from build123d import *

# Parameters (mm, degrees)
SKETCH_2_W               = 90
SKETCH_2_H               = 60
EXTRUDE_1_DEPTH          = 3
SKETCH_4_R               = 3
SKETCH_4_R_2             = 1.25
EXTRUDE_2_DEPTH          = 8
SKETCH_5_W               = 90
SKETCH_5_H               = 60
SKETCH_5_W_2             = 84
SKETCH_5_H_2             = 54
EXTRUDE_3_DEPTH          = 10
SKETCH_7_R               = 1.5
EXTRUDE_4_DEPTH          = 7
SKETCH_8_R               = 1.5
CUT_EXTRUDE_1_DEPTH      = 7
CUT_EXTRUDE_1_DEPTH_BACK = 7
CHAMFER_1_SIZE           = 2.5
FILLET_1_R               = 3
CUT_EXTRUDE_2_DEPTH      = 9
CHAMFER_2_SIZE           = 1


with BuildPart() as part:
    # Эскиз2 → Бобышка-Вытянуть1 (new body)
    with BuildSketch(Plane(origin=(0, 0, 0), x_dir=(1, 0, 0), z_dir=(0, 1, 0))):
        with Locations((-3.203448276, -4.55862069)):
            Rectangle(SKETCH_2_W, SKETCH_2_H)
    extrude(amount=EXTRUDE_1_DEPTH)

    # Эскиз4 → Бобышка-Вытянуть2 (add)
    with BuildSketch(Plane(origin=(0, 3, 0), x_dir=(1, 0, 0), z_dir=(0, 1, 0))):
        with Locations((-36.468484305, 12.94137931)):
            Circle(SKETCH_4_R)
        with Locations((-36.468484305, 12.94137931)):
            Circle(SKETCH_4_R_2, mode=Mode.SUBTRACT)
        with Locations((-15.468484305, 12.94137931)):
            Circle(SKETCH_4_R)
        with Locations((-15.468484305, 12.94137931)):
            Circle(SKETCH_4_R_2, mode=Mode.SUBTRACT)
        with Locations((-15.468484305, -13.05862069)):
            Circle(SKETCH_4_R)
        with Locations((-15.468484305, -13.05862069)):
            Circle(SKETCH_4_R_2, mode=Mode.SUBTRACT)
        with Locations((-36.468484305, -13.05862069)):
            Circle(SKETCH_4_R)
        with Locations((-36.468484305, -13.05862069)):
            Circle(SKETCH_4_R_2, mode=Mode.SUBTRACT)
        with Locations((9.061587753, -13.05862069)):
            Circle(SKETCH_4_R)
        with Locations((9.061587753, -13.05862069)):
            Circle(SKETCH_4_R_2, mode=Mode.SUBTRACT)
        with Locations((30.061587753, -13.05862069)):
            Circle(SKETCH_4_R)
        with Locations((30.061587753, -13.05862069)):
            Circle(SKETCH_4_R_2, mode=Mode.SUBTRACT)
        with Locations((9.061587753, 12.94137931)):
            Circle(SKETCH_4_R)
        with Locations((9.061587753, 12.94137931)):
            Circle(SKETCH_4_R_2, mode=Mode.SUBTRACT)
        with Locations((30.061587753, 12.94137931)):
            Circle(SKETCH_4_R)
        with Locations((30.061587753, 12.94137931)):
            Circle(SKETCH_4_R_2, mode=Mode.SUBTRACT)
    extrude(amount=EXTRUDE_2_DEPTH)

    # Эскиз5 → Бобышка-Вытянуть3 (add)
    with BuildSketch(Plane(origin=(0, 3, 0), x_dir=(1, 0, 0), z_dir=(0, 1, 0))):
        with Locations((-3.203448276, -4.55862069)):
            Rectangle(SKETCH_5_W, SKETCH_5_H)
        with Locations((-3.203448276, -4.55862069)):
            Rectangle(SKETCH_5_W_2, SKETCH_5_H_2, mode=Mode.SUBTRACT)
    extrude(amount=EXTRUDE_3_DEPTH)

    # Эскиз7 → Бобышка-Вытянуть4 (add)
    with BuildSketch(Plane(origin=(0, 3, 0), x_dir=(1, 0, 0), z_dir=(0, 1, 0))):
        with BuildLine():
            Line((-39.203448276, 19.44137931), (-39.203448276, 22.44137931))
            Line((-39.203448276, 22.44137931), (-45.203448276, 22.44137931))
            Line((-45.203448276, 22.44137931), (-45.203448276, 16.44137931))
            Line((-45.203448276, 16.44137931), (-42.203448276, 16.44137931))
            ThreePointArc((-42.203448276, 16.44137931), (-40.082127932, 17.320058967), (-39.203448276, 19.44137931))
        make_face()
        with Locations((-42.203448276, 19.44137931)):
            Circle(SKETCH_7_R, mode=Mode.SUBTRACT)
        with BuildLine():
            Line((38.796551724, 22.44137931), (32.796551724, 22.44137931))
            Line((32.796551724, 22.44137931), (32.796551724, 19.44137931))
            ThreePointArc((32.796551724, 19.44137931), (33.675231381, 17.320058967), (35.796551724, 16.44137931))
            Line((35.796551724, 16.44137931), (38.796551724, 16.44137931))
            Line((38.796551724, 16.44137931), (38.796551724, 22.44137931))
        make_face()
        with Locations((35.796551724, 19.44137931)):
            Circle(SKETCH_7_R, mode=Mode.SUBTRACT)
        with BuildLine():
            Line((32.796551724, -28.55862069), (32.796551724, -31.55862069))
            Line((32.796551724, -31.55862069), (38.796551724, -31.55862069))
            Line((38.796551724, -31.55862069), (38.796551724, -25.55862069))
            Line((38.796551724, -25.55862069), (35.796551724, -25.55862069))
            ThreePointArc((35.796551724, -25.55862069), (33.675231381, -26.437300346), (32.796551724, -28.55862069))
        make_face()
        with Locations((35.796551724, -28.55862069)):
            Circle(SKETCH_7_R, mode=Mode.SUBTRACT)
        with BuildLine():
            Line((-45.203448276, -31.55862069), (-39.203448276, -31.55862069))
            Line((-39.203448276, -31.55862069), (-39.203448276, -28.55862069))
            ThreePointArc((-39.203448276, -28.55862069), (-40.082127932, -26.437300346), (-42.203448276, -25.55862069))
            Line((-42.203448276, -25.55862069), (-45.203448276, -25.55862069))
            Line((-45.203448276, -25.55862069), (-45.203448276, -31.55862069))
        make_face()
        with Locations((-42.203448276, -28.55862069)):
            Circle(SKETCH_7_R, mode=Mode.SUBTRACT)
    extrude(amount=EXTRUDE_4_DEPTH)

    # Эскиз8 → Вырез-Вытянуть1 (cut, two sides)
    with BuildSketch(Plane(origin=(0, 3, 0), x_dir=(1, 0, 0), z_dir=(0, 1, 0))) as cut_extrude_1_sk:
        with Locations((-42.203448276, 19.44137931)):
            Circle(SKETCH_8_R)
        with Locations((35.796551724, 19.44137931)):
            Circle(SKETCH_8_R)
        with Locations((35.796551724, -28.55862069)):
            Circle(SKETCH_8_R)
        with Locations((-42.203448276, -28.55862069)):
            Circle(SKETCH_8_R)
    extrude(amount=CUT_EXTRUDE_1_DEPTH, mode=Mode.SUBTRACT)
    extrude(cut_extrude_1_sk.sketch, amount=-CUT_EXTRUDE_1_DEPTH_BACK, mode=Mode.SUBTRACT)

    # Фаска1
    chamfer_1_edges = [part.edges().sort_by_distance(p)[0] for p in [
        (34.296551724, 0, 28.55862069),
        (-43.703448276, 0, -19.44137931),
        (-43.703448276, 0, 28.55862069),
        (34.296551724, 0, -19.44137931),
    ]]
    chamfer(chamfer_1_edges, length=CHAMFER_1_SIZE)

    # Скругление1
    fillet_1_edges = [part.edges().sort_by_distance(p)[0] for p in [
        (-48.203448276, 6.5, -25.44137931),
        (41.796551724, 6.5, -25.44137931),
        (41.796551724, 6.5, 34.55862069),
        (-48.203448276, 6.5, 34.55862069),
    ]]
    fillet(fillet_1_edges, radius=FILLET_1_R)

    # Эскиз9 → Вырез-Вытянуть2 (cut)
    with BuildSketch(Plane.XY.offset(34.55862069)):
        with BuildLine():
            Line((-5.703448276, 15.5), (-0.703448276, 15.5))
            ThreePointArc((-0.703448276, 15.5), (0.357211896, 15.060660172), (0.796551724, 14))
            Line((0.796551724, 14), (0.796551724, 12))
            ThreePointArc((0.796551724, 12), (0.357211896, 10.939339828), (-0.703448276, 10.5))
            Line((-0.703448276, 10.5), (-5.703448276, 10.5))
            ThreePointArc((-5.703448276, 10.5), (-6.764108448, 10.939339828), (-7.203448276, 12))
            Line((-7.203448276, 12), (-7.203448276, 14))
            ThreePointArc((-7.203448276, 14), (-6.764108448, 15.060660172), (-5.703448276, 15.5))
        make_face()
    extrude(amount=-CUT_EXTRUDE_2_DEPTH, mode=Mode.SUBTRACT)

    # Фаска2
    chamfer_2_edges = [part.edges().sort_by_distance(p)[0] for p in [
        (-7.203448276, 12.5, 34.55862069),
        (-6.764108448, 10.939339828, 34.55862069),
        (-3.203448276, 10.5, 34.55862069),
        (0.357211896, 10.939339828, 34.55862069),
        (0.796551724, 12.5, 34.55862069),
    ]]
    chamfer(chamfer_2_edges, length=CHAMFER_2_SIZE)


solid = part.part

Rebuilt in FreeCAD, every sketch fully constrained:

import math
import FreeCAD as App
import Part
import Sketcher
from FreeCAD import Vector


def edges_at(feature, points):
    """Names of the edges that pass closest to the given points."""
    edges = feature.Shape.Edges
    near = lambda p: min(range(len(edges)), key=lambda i: edges[i].distToShape(Part.Vertex(*p))[0])
    return sorted({f"Edge{near(p) + 1}" for p in points})

doc = App.newDocument("Part")
body = doc.addObject("PartDesign::Body", "Body")

# Sketch on XZ plane
sketch1 = body.newObject("Sketcher::SketchObject", "Sketch")
sketch1.AttachmentSupport = (doc.getObject("XZ_Plane"), [""])
sketch1.MapMode = "FlatFace"
sketch1.addGeometry([
    Part.LineSegment(Vector(-48, -25, 0), Vector(-48, 35, 0)),
    Part.LineSegment(Vector(-48, 35, 0), Vector(42, 35, 0)),
    Part.LineSegment(Vector(42, 35, 0), Vector(42, -25, 0)),
    Part.LineSegment(Vector(42, -25, 0), Vector(-48, -25, 0)),
], False)
sketch1.addConstraint([
    Sketcher.Constraint("Coincident", 0, 2, 1, 1),
    Sketcher.Constraint("Coincident", 1, 2, 2, 1),
    Sketcher.Constraint("Coincident", 2, 2, 3, 1),
    Sketcher.Constraint("Coincident", 3, 2, 0, 1),
    Sketcher.Constraint("Vertical", 0),
    Sketcher.Constraint("Horizontal", 1),
    Sketcher.Constraint("Vertical", 2),
    Sketcher.Constraint("Horizontal", 3),
    Sketcher.Constraint("DistanceX", 1, 1, 1, 2, 90.0),
    Sketcher.Constraint("DistanceY", 0, 1, 0, 2, 60.0),
    Sketcher.Constraint("DistanceX", 0, 2, -1, 1, 48.203448),
    Sketcher.Constraint("DistanceY", -1, 1, 0, 2, 34.558621),
])
pad1 = body.newObject("PartDesign::Pad", "Pad")
pad1.Profile = sketch1
pad1.Length = 3
pad1.Reversed = True

# Sketch on XZ plane
sketch2 = body.newObject("Sketcher::SketchObject", "Sketch001")
sketch2.AttachmentSupport = (doc.getObject("XZ_Plane"), [""])
sketch2.MapMode = "FlatFace"
sketch2.AttachmentOffset = App.Placement(Vector(0, 0, -3), App.Rotation())
sketch2.addGeometry([
    Part.Circle(Vector(-36.5, -12.9, 0), Vector(0, 0, 1), 3),  # 0
    Part.Circle(Vector(-36.5, -12.9, 0), Vector(0, 0, 1), 1.2),  # 1
    Part.Circle(Vector(-15.5, -12.9, 0), Vector(0, 0, 1), 3),  # 2
    Part.Circle(Vector(-15.5, -12.9, 0), Vector(0, 0, 1), 1.2),  # 3
    Part.Circle(Vector(-15.5, 13.1, 0), Vector(0, 0, 1), 3),  # 4
    Part.Circle(Vector(-15.5, 13.1, 0), Vector(0, 0, 1), 1.2),  # 5
    Part.Circle(Vector(-36.5, 13.1, 0), Vector(0, 0, 1), 3),  # 6
    Part.Circle(Vector(-36.5, 13.1, 0), Vector(0, 0, 1), 1.2),  # 7
    Part.Circle(Vector(9.1, 13.1, 0), Vector(0, 0, 1), 3),  # 8
    Part.Circle(Vector(9.1, 13.1, 0), Vector(0, 0, 1), 1.2),  # 9
    Part.Circle(Vector(30.1, 13.1, 0), Vector(0, 0, 1), 3),  # 10
    Part.Circle(Vector(30.1, 13.1, 0), Vector(0, 0, 1), 1.2),  # 11
    Part.Circle(Vector(9.1, -12.9, 0), Vector(0, 0, 1), 3),  # 12
    Part.Circle(Vector(9.1, -12.9, 0), Vector(0, 0, 1), 1.2),  # 13
    Part.Circle(Vector(30.1, -12.9, 0), Vector(0, 0, 1), 3),  # 14
    Part.Circle(Vector(30.1, -12.9, 0), Vector(0, 0, 1), 1.2),  # 15
], False)
sketch2.addConstraint([
    Sketcher.Constraint("Coincident", 1, 3, 0, 3),
    Sketcher.Constraint("Coincident", 3, 3, 2, 3),
    Sketcher.Constraint("Coincident", 5, 3, 4, 3),
    Sketcher.Constraint("Coincident", 7, 3, 6, 3),
    Sketcher.Constraint("Coincident", 9, 3, 8, 3),
    Sketcher.Constraint("Coincident", 11, 3, 10, 3),
    Sketcher.Constraint("Coincident", 13, 3, 12, 3),
    Sketcher.Constraint("Coincident", 15, 3, 14, 3),
    Sketcher.Constraint("Equal", 0, 2),
    Sketcher.Constraint("Equal", 1, 3),
    Sketcher.Constraint("Equal", 2, 4),
    Sketcher.Constraint("Equal", 3, 5),
    Sketcher.Constraint("Equal", 4, 6),
    Sketcher.Constraint("Equal", 5, 7),
    Sketcher.Constraint("Equal", 6, 8),
    Sketcher.Constraint("Equal", 7, 9),
    Sketcher.Constraint("Equal", 8, 10),
    Sketcher.Constraint("Equal", 9, 11),
    Sketcher.Constraint("Equal", 10, 12),
    Sketcher.Constraint("Equal", 11, 13),
    Sketcher.Constraint("Equal", 12, 14),
    Sketcher.Constraint("Equal", 13, 15),
    Sketcher.Constraint("Horizontal", 1, 3, 2, 3),
    Sketcher.Constraint("Horizontal", 5, 3, 6, 3),
    Sketcher.Constraint("Horizontal", 7, 3, 8, 3),
    Sketcher.Constraint("Horizontal", 9, 3, 10, 3),
    Sketcher.Constraint("Horizontal", 3, 3, 12, 3),
    Sketcher.Constraint("Horizontal", 13, 3, 14, 3),
    Sketcher.Constraint("Vertical", 3, 3, 4, 3),
    Sketcher.Constraint("Vertical", 1, 3, 6, 3),
    Sketcher.Constraint("Vertical", 9, 3, 12, 3),
    Sketcher.Constraint("Vertical", 11, 3, 14, 3),
    Sketcher.Constraint("Diameter", 0, 6.0),
    Sketcher.Constraint("Diameter", 1, 2.5),
    Sketcher.Constraint("DistanceX", 0, 3, 2, 3, 21.0),
    Sketcher.Constraint("DistanceY", 2, 3, 4, 3, 26.0),
    Sketcher.Constraint("DistanceX", 8, 3, 10, 3, 21.0),
    Sketcher.Constraint("DistanceY", 0, 3, -1, 1, 12.941379),
    Sketcher.Constraint("DistanceX", 0, 3, -1, 1, 36.468484),
    Sketcher.Constraint("DistanceX", -1, 1, 8, 3, 9.061588),
])
pad2 = body.newObject("PartDesign::Pad", "Pad001")
pad2.Profile = sketch2
pad2.Length = 8
pad2.Reversed = True

# Sketch on XZ plane
sketch3 = body.newObject("Sketcher::SketchObject", "Sketch002")
sketch3.AttachmentSupport = (doc.getObject("XZ_Plane"), [""])
sketch3.MapMode = "FlatFace"
sketch3.AttachmentOffset = App.Placement(Vector(0, 0, -3), App.Rotation())
sketch3.addGeometry([
    Part.LineSegment(Vector(-48, -25, 0), Vector(-48, 35, 0)),  # 0
    Part.LineSegment(Vector(-48, 35, 0), Vector(42, 35, 0)),  # 1
    Part.LineSegment(Vector(42, 35, 0), Vector(42, -25, 0)),  # 2
    Part.LineSegment(Vector(42, -25, 0), Vector(-48, -25, 0)),  # 3
    Part.LineSegment(Vector(39, 32, 0), Vector(-45, 32, 0)),  # 4
    Part.LineSegment(Vector(-45, 32, 0), Vector(-45, -22, 0)),  # 5
    Part.LineSegment(Vector(-45, -22, 0), Vector(39, -22, 0)),  # 6
    Part.LineSegment(Vector(39, -22, 0), Vector(39, 32, 0)),  # 7
], False)
sketch3.addConstraint([
    Sketcher.Constraint("Coincident", 0, 2, 1, 1),
    Sketcher.Constraint("Coincident", 1, 2, 2, 1),
    Sketcher.Constraint("Coincident", 2, 2, 3, 1),
    Sketcher.Constraint("Coincident", 3, 2, 0, 1),
    Sketcher.Constraint("Coincident", 4, 2, 5, 1),
    Sketcher.Constraint("Coincident", 5, 2, 6, 1),
    Sketcher.Constraint("Coincident", 6, 2, 7, 1),
    Sketcher.Constraint("Coincident", 7, 2, 4, 1),
    Sketcher.Constraint("Vertical", 0),
    Sketcher.Constraint("Horizontal", 1),
    Sketcher.Constraint("Vertical", 2),
    Sketcher.Constraint("Horizontal", 3),
    Sketcher.Constraint("Horizontal", 4),
    Sketcher.Constraint("Vertical", 5),
    Sketcher.Constraint("Horizontal", 6),
    Sketcher.Constraint("Vertical", 7),
    Sketcher.Constraint("DistanceX", 1, 1, 1, 2, 90.0),
    Sketcher.Constraint("DistanceX", 4, 2, 4, 1, 84.0),
    Sketcher.Constraint("DistanceY", 0, 1, 0, 2, 60.0),
    Sketcher.Constraint("DistanceY", 5, 2, 5, 1, 54.0),
    Sketcher.Constraint("DistanceX", 0, 2, 4, 2, 3.0),
    Sketcher.Constraint("DistanceY", 4, 2, 0, 2, 3.0),
    Sketcher.Constraint("DistanceX", 0, 2, -1, 1, 48.203448),
    Sketcher.Constraint("DistanceY", -1, 1, 0, 2, 34.558621),
])
pad3 = body.newObject("PartDesign::Pad", "Pad002")
pad3.Profile = sketch3
pad3.Length = 10
pad3.Reversed = True

# Sketch on XZ plane
sketch4 = body.newObject("Sketcher::SketchObject", "Sketch003")
sketch4.AttachmentSupport = (doc.getObject("XZ_Plane"), [""])
sketch4.MapMode = "FlatFace"
sketch4.AttachmentOffset = App.Placement(Vector(0, 0, -3), App.Rotation())
sketch4.addGeometry([
    Part.LineSegment(Vector(-39.2, -19.4, 0), Vector(-39.2, -22.4, 0)),  # 0
    Part.LineSegment(Vector(-39.2, -22.4, 0), Vector(-45.2, -22.4, 0)),  # 1
    Part.LineSegment(Vector(-45.2, -22.4, 0), Vector(-45.2, -16.4, 0)),  # 2
    Part.LineSegment(Vector(-45.2, -16.4, 0), Vector(-42.2, -16.4, 0)),  # 3
    Part.ArcOfCircle(Part.Circle(Vector(-42.2, -19.4, 0), Vector(0, 0, 1), 3), math.radians(0), math.radians(90)),  # 4
    Part.Circle(Vector(-42.2, -19.4, 0), Vector(0, 0, 1), 1.5),  # 5
    Part.LineSegment(Vector(38.8, -22.4, 0), Vector(32.8, -22.4, 0)),  # 6
    Part.LineSegment(Vector(32.8, -22.4, 0), Vector(32.8, -19.4, 0)),  # 7
    Part.ArcOfCircle(Part.Circle(Vector(35.8, -19.4, 0), Vector(0, 0, 1), 3), math.radians(90), math.radians(180)),  # 8
    Part.LineSegment(Vector(35.8, -16.4, 0), Vector(38.8, -16.4, 0)),  # 9
    Part.LineSegment(Vector(38.8, -16.4, 0), Vector(38.8, -22.4, 0)),  # 10
    Part.Circle(Vector(35.8, -19.4, 0), Vector(0, 0, 1), 1.5),  # 11
    Part.LineSegment(Vector(32.8, 28.6, 0), Vector(32.8, 31.6, 0)),  # 12
    Part.LineSegment(Vector(32.8, 31.6, 0), Vector(38.8, 31.6, 0)),  # 13
    Part.LineSegment(Vector(38.8, 31.6, 0), Vector(38.8, 25.6, 0)),  # 14
    Part.LineSegment(Vector(38.8, 25.6, 0), Vector(35.8, 25.6, 0)),  # 15
    Part.ArcOfCircle(Part.Circle(Vector(35.8, 28.6, 0), Vector(0, 0, 1), 3), math.radians(180), math.radians(270)),  # 16
    Part.Circle(Vector(35.8, 28.6, 0), Vector(0, 0, 1), 1.5),  # 17
    Part.LineSegment(Vector(-45.2, 31.6, 0), Vector(-39.2, 31.6, 0)),  # 18
    Part.LineSegment(Vector(-39.2, 31.6, 0), Vector(-39.2, 28.6, 0)),  # 19
    Part.ArcOfCircle(Part.Circle(Vector(-42.2, 28.6, 0), Vector(0, 0, 1), 3), math.radians(-90), math.radians(0)),  # 20
    Part.LineSegment(Vector(-42.2, 25.6, 0), Vector(-45.2, 25.6, 0)),  # 21
    Part.LineSegment(Vector(-45.2, 25.6, 0), Vector(-45.2, 31.6, 0)),  # 22
    Part.Circle(Vector(-42.2, 28.6, 0), Vector(0, 0, 1), 1.5),  # 23
], False)
sketch4.addConstraint([
    Sketcher.Constraint("Coincident", 0, 2, 1, 1),
    Sketcher.Constraint("Coincident", 1, 2, 2, 1),
    Sketcher.Constraint("Coincident", 2, 2, 3, 1),
    Sketcher.Constraint("Tangent", 3, 2, 4, 2),
    Sketcher.Constraint("Tangent", 4, 1, 0, 1),
    Sketcher.Constraint("Coincident", 6, 2, 7, 1),
    Sketcher.Constraint("Tangent", 7, 2, 8, 2),
    Sketcher.Constraint("Tangent", 8, 1, 9, 1),
    Sketcher.Constraint("Coincident", 9, 2, 10, 1),
    Sketcher.Constraint("Coincident", 10, 2, 6, 1),
    Sketcher.Constraint("Coincident", 12, 2, 13, 1),
    Sketcher.Constraint("Coincident", 13, 2, 14, 1),
    Sketcher.Constraint("Coincident", 14, 2, 15, 1),
    Sketcher.Constraint("Tangent", 15, 2, 16, 2),
    Sketcher.Constraint("Tangent", 16, 1, 12, 1),
    Sketcher.Constraint("Coincident", 18, 2, 19, 1),
    Sketcher.Constraint("Tangent", 19, 2, 20, 2),
    Sketcher.Constraint("Tangent", 20, 1, 21, 1),
    Sketcher.Constraint("Coincident", 21, 2, 22, 1),
    Sketcher.Constraint("Coincident", 22, 2, 18, 1),
    Sketcher.Constraint("Vertical", 0),
    Sketcher.Constraint("Horizontal", 1),
    Sketcher.Constraint("Vertical", 2),
    Sketcher.Constraint("Horizontal", 3),
    Sketcher.Constraint("Horizontal", 6),
    Sketcher.Constraint("Vertical", 7),
    Sketcher.Constraint("Horizontal", 9),
    Sketcher.Constraint("Vertical", 10),
    Sketcher.Constraint("Vertical", 12),
    Sketcher.Constraint("Horizontal", 13),
    Sketcher.Constraint("Vertical", 14),
    Sketcher.Constraint("Horizontal", 15),
    Sketcher.Constraint("Horizontal", 18),
    Sketcher.Constraint("Vertical", 19),
    Sketcher.Constraint("Horizontal", 21),
    Sketcher.Constraint("Vertical", 22),
    Sketcher.Constraint("Coincident", 5, 3, 4, 3),
    Sketcher.Constraint("Coincident", 11, 3, 8, 3),
    Sketcher.Constraint("Coincident", 17, 3, 16, 3),
    Sketcher.Constraint("Coincident", 23, 3, 20, 3),
    Sketcher.Constraint("Equal", 4, 8),
    Sketcher.Constraint("Equal", 5, 11),
    Sketcher.Constraint("Equal", 8, 16),
    Sketcher.Constraint("Equal", 11, 17),
    Sketcher.Constraint("Equal", 16, 20),
    Sketcher.Constraint("Equal", 17, 23),
    Sketcher.Constraint("Horizontal", 5, 3, 8, 3),
    Sketcher.Constraint("Horizontal", 17, 3, 20, 3),
    Sketcher.Constraint("Horizontal", 1, 2, 6, 2),
    Sketcher.Constraint("Horizontal", 13, 2, 18, 2),
    Sketcher.Constraint("Vertical", 11, 3, 16, 3),
    Sketcher.Constraint("Vertical", 5, 3, 20, 3),
    Sketcher.Constraint("Vertical", 10, 2, 13, 2),
    Sketcher.Constraint("Vertical", 2, 2, 21, 2),
    Sketcher.Constraint("Equal", 1, 6),
    Sketcher.Constraint("Equal", 21, 0),
    Sketcher.Constraint("Equal", 7, 12),
    Sketcher.Constraint("Diameter", 5, 3.0),
    Sketcher.Constraint("Radius", 4, 3.0),
    Sketcher.Constraint("DistanceX", 1, 2, 1, 1, 6.0),
    Sketcher.Constraint("DistanceX", 4, 3, 8, 3, 78.0),
    Sketcher.Constraint("DistanceY", 11, 3, 16, 3, 48.0),
    Sketcher.Constraint("DistanceX", 4, 3, -1, 1, 42.203448),
    Sketcher.Constraint("DistanceY", 4, 3, -1, 1, 19.441379),
])
pad4 = body.newObject("PartDesign::Pad", "Pad003")
pad4.Profile = sketch4
pad4.Length = 7
pad4.Reversed = True

# Sketch on XZ plane
sketch5 = body.newObject("Sketcher::SketchObject", "Sketch004")
sketch5.AttachmentSupport = (doc.getObject("XZ_Plane"), [""])
sketch5.MapMode = "FlatFace"
sketch5.AttachmentOffset = App.Placement(Vector(0, 0, -3), App.Rotation())
sketch5.addGeometry([
    Part.Circle(Vector(-42.2, -19.4, 0), Vector(0, 0, 1), 1.5),
    Part.Circle(Vector(35.8, -19.4, 0), Vector(0, 0, 1), 1.5),
    Part.Circle(Vector(35.8, 28.6, 0), Vector(0, 0, 1), 1.5),
    Part.Circle(Vector(-42.2, 28.6, 0), Vector(0, 0, 1), 1.5),
], False)
sketch5.addConstraint([
    Sketcher.Constraint("Equal", 0, 1),
    Sketcher.Constraint("Equal", 1, 2),
    Sketcher.Constraint("Equal", 2, 3),
    Sketcher.Constraint("Horizontal", 0, 3, 1, 3),
    Sketcher.Constraint("Horizontal", 2, 3, 3, 3),
    Sketcher.Constraint("Vertical", 1, 3, 2, 3),
    Sketcher.Constraint("Vertical", 0, 3, 3, 3),
    Sketcher.Constraint("Diameter", 0, 3.0),
    Sketcher.Constraint("DistanceX", 0, 3, 1, 3, 78.0),
    Sketcher.Constraint("DistanceY", 1, 3, 2, 3, 48.0),
    Sketcher.Constraint("DistanceX", 0, 3, -1, 1, 42.203448),
    Sketcher.Constraint("DistanceY", 0, 3, -1, 1, 19.441379),
])
pocket1 = body.newObject("PartDesign::Pocket", "Pocket")
pocket1.Profile = sketch5
pocket1.Type = "ThroughAll"
pocket1.Midplane = True
doc.recompute()

chamfer = body.newObject("PartDesign::Chamfer", "Chamfer")
chamfer.Base = (pocket1, edges_at(pocket1, [
    (34.297, 0, 28.559),
    (-43.703, 0, -19.441),
    (-43.703, 0, 28.559),
    (34.297, 0, -19.441),
]))
chamfer.Size = 2.5
doc.recompute()

fillet = body.newObject("PartDesign::Fillet", "Fillet")
fillet.Base = (chamfer, edges_at(chamfer, [
    (-48.203, 6.5, -25.441),
    (41.797, 6.5, -25.441),
    (41.797, 6.5, 34.559),
    (-48.203, 6.5, 34.559),
]))
fillet.Radius = 3

# Sketch on XY plane
sketch6 = body.newObject("Sketcher::SketchObject", "Sketch005")
sketch6.AttachmentSupport = (doc.getObject("XY_Plane"), [""])
sketch6.MapMode = "FlatFace"
sketch6.AttachmentOffset = App.Placement(Vector(0, 0, 34.558621), App.Rotation())
sketch6.addGeometry([
    Part.LineSegment(Vector(-0.7, 15.5, 0), Vector(-5.7, 15.5, 0)),  # 0
    Part.ArcOfCircle(Part.Circle(Vector(-5.7, 14, 0), Vector(0, 0, 1), 1.5), math.radians(90), math.radians(180)),  # 1
    Part.LineSegment(Vector(-7.2, 14, 0), Vector(-7.2, 12, 0)),  # 2
    Part.ArcOfCircle(Part.Circle(Vector(-5.7, 12, 0), Vector(0, 0, 1), 1.5), math.radians(180), math.radians(270)),  # 3
    Part.LineSegment(Vector(-5.7, 10.5, 0), Vector(-0.7, 10.5, 0)),  # 4
    Part.ArcOfCircle(Part.Circle(Vector(-0.7, 12, 0), Vector(0, 0, 1), 1.5), math.radians(-90), math.radians(0)),  # 5
    Part.LineSegment(Vector(0.8, 12, 0), Vector(0.8, 14, 0)),  # 6
    Part.ArcOfCircle(Part.Circle(Vector(-0.7, 14, 0), Vector(0, 0, 1), 1.5), math.radians(0), math.radians(90)),  # 7
], False)
sketch6.addConstraint([
    Sketcher.Constraint("Tangent", 0, 2, 1, 1),
    Sketcher.Constraint("Tangent", 1, 2, 2, 1),
    Sketcher.Constraint("Tangent", 2, 2, 3, 1),
    Sketcher.Constraint("Tangent", 3, 2, 4, 1),
    Sketcher.Constraint("Tangent", 4, 2, 5, 1),
    Sketcher.Constraint("Tangent", 5, 2, 6, 1),
    Sketcher.Constraint("Tangent", 6, 2, 7, 1),
    Sketcher.Constraint("Tangent", 7, 2, 0, 1),
    Sketcher.Constraint("Horizontal", 0),
    Sketcher.Constraint("Vertical", 2),
    Sketcher.Constraint("Horizontal", 4),
    Sketcher.Constraint("Vertical", 6),
    Sketcher.Constraint("Equal", 1, 3),
    Sketcher.Constraint("Equal", 3, 5),
    Sketcher.Constraint("Equal", 5, 7),
    Sketcher.Constraint("Radius", 1, 1.5),
    Sketcher.Constraint("DistanceX", 0, 2, 0, 1, 5.0),
    Sketcher.Constraint("DistanceY", 2, 2, 2, 1, 2.0),
    Sketcher.Constraint("DistanceY", -1, 1, 1, 3, 14.0),
    Sketcher.Constraint("DistanceX", 1, 3, -1, 1, 5.703448),
])
pocket2 = body.newObject("PartDesign::Pocket", "Pocket001")
pocket2.Profile = sketch6
pocket2.Length = 9
doc.recompute()

chamfer2 = body.newObject("PartDesign::Chamfer", "Chamfer001")
chamfer2.Base = (pocket2, edges_at(pocket2, [
    (-7.203, 12.5, 34.559),
    (-6.764, 10.939, 34.559),
    (-3.203, 10.5, 34.559),
    (0.357, 10.939, 34.559),
    (0.797, 12.5, 34.559),
]))
chamfer2.Size = 1

doc.recompute()
